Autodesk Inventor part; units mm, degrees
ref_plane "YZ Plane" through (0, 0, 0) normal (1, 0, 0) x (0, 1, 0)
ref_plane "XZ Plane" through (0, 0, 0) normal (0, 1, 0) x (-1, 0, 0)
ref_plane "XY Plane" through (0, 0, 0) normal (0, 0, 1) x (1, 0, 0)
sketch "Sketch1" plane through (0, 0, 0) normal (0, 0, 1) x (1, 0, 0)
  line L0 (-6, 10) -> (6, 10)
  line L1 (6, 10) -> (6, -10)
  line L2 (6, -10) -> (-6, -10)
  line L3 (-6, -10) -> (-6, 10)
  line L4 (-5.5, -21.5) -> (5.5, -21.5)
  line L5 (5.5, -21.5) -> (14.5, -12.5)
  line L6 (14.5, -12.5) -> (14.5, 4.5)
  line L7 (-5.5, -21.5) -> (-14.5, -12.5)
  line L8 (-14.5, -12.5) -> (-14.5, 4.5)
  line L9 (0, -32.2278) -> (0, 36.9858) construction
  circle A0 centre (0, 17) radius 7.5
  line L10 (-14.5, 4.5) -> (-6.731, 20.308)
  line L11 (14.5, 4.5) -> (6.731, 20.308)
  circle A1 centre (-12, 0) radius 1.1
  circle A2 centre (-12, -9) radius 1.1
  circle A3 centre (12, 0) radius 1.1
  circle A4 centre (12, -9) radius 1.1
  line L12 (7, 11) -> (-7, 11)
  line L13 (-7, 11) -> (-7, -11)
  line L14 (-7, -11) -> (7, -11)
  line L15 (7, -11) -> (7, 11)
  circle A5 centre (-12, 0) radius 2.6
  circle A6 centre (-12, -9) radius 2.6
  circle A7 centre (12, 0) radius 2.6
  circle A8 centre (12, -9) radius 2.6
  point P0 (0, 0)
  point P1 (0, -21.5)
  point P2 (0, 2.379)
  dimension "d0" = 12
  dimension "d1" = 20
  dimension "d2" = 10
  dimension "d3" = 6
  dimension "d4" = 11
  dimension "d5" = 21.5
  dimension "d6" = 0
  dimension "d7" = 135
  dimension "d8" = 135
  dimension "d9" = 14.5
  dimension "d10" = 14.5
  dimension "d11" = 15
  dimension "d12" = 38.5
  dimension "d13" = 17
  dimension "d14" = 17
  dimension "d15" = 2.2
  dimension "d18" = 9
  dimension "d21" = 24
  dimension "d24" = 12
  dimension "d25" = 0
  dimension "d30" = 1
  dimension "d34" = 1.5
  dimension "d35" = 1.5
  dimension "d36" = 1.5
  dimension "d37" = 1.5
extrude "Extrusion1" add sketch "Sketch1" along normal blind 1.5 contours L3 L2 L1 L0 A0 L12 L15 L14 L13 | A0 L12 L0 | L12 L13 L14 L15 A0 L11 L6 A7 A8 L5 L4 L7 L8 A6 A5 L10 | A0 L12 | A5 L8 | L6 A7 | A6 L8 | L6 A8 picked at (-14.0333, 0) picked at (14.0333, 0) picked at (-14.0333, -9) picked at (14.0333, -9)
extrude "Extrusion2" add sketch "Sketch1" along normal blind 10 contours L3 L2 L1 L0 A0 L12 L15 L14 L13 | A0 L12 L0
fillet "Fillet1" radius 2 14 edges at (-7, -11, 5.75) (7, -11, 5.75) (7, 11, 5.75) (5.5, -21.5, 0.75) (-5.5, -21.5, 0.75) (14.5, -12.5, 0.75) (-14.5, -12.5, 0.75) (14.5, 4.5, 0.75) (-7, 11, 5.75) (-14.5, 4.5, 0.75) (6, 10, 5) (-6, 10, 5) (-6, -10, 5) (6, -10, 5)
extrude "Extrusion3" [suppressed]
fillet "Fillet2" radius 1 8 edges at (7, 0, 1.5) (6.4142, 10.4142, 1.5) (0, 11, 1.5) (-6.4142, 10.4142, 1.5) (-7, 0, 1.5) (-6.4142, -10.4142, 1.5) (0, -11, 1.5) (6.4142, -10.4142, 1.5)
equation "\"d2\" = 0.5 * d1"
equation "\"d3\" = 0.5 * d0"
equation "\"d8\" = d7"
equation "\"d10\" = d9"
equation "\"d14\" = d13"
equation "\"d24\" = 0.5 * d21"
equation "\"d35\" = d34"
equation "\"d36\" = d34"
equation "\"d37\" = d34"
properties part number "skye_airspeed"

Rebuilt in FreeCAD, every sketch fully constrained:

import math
import FreeCAD as App
import Part
import Sketcher

V = App.Vector
Q = App.Units.Quantity


def edges_at(feature, points):
    """Names of the edges that pass closest to the given points."""
    edges = feature.Shape.Edges
    near = lambda p: min(range(len(edges)), key=lambda i: edges[i].distToShape(Part.Vertex(*p))[0])
    return sorted({f"Edge{near(p) + 1}" for p in points})

doc = App.newDocument("Part")
body = doc.addObject("PartDesign::Body", "Body")

sketch1 = doc.addObject("Sketcher::SketchObject", "Sketch")
body.addObject(sketch1)
sketch1.AttachmentSupport = (doc.XY_Plane, [""])
sketch1.MapMode = "FlatFace"
sketch1.addGeometry([
    Part.LineSegment(V(-14.5, 4.5, 0), V(-14.5, -12.5, 0)),
    Part.LineSegment(V(-14.5, -12.5, 0), V(-5.5, -21.5, 0)),
    Part.LineSegment(V(-5.5, -21.5, 0), V(5.5, -21.5, 0)),
    Part.LineSegment(V(5.5, -21.5, 0), V(14.5, -12.5, 0)),
    Part.LineSegment(V(14.5, -12.5, 0), V(14.5, 4.5, 0)),
    Part.LineSegment(V(14.5, 4.5, 0), V(6.731, 20.308, 0)),
    Part.ArcOfCircle(Part.Circle(V(0, 17, 0), V(0, 0, 1), 7.5), math.radians(26.172152), math.radians(153.827848)),
    Part.LineSegment(V(-6.731, 20.308, 0), V(-14.5, 4.5, 0)),
    Part.LineSegment(V(-6, -10, 0), V(-6, 10, 0)),
    Part.LineSegment(V(-6, 10, 0), V(6, 10, 0)),
    Part.LineSegment(V(6, 10, 0), V(6, -10, 0)),
    Part.LineSegment(V(6, -10, 0), V(-6, -10, 0)),
    Part.Circle(V(-12, 0, 0), V(0, 0, 1), 1.1),
    Part.Circle(V(12, 0, 0), V(0, 0, 1), 1.1),
    Part.Circle(V(12, -9, 0), V(0, 0, 1), 1.1),
    Part.Circle(V(-12, -9, 0), V(0, 0, 1), 1.1),
], False)
sketch1.addConstraint([
    Sketcher.Constraint("Coincident", 0, 2, 1, 1),
    Sketcher.Constraint("Coincident", 1, 2, 2, 1),
    Sketcher.Constraint("Coincident", 2, 2, 3, 1),
    Sketcher.Constraint("Coincident", 3, 2, 4, 1),
    Sketcher.Constraint("Coincident", 4, 2, 5, 1),
    Sketcher.Constraint("Tangent", 5, 2, 6, 1),
    Sketcher.Constraint("Tangent", 6, 2, 7, 1),
    Sketcher.Constraint("Coincident", 7, 2, 0, 1),
    Sketcher.Constraint("Coincident", 8, 2, 9, 1),
    Sketcher.Constraint("Coincident", 9, 2, 10, 1),
    Sketcher.Constraint("Coincident", 10, 2, 11, 1),
    Sketcher.Constraint("Coincident", 11, 2, 8, 1),
    Sketcher.Constraint("Vertical", 0),
    Sketcher.Constraint("Horizontal", 2),
    Sketcher.Constraint("Vertical", 4),
    Sketcher.Constraint("Vertical", 8),
    Sketcher.Constraint("Horizontal", 9),
    Sketcher.Constraint("Vertical", 10),
    Sketcher.Constraint("Horizontal", 11),
    Sketcher.Constraint("Equal", 12, 13),
    Sketcher.Constraint("Equal", 13, 14),
    Sketcher.Constraint("Equal", 14, 15),
    Sketcher.Constraint("Symmetric", 12, 3, 13, 3, -1, 1),
    Sketcher.Constraint("Symmetric", 8, 2, 10, 2, -1, 1),
    Sketcher.Constraint("Symmetric", 14, 3, 15, 3, -2),
    Sketcher.Constraint("Symmetric", 0, 2, 3, 2, -2),
    Sketcher.Constraint("Symmetric", 5, 2, 6, 2, -2),
    Sketcher.Constraint("PointOnObject", 12, 3, -1),
    Sketcher.Constraint("Perpendicular", 1, 3),
    Sketcher.Constraint("Vertical", 13, 3, 14, 3),
    Sketcher.Constraint("Equal", 1, 3),
    Sketcher.Constraint("Diameter", 12, Q("2.2 mm")),
    Sketcher.Constraint("Radius", 6, Q("7.5 mm")),
    Sketcher.Constraint("DistanceX", 2, 1, 2, 2, Q("11 mm")),
    Sketcher.Constraint("DistanceX", 9, 1, 9, 2, Q("12 mm")),
    Sketcher.Constraint("DistanceY", 0, 2, 0, 1, Q("17 mm")),
    Sketcher.Constraint("DistanceY", 8, 1, 8, 2, Q("20 mm")),
    Sketcher.Constraint("DistanceY", -1, 1, 6, 3, Q("17 mm")),
    Sketcher.Constraint("DistanceX", 12, 3, -1, 1, Q("12 mm")),
    Sketcher.Constraint("DistanceY", 14, 3, -1, 1, Q("9 mm")),
    Sketcher.Constraint("DistanceX", 0, 2, 1, 2, Q("9 mm")),
    Sketcher.Constraint("DistanceY", 1, 2, -1, 1, Q("21.5 mm")),
])
pad1 = doc.addObject("PartDesign::Pad", "Pad")
body.addObject(pad1)
pad1.Profile = sketch1
pad1.Length = 1.5

sketch2 = doc.addObject("Sketcher::SketchObject", "Sketch001")
body.addObject(sketch2)
sketch2.AttachmentSupport = (doc.XY_Plane, [""])
sketch2.MapMode = "FlatFace"
sketch2.addGeometry([
    Part.LineSegment(V(7, 11, 0), V(-7, 11, 0)),
    Part.LineSegment(V(-7, 11, 0), V(-7, -11, 0)),
    Part.LineSegment(V(-7, -11, 0), V(7, -11, 0)),
    Part.LineSegment(V(7, -11, 0), V(7, 11, 0)),
    Part.LineSegment(V(-6, -10, 0), V(-6, 10, 0)),
    Part.LineSegment(V(-6, 10, 0), V(6, 10, 0)),
    Part.LineSegment(V(6, 10, 0), V(6, -10, 0)),
    Part.LineSegment(V(6, -10, 0), V(-6, -10, 0)),
], False)
sketch2.addConstraint([
    Sketcher.Constraint("Coincident", 0, 2, 1, 1),
    Sketcher.Constraint("Coincident", 1, 2, 2, 1),
    Sketcher.Constraint("Coincident", 2, 2, 3, 1),
    Sketcher.Constraint("Coincident", 3, 2, 0, 1),
    Sketcher.Constraint("Coincident", 4, 2, 5, 1),
    Sketcher.Constraint("Coincident", 5, 2, 6, 1),
    Sketcher.Constraint("Coincident", 6, 2, 7, 1),
    Sketcher.Constraint("Coincident", 7, 2, 4, 1),
    Sketcher.Constraint("Horizontal", 0),
    Sketcher.Constraint("Vertical", 1),
    Sketcher.Constraint("Horizontal", 2),
    Sketcher.Constraint("Vertical", 3),
    Sketcher.Constraint("Vertical", 4),
    Sketcher.Constraint("Horizontal", 5),
    Sketcher.Constraint("Vertical", 6),
    Sketcher.Constraint("Horizontal", 7),
    Sketcher.Constraint("Symmetric", 0, 2, 2, 2, -1, 1),
    Sketcher.Constraint("Symmetric", 4, 2, 6, 2, -1, 1),
    Sketcher.Constraint("DistanceX", 5, 1, 5, 2, Q("12 mm")),
    Sketcher.Constraint("DistanceY", 4, 1, 4, 2, Q("20 mm")),
    Sketcher.Constraint("DistanceY", -1, 1, 0, 2, Q("11 mm")),
    Sketcher.Constraint("DistanceX", 0, 2, 4, 2, Q("1 mm")),
])
pad2 = doc.addObject("PartDesign::Pad", "Pad001")
body.addObject(pad2)
pad2.Profile = sketch2
pad2.Length = 10
doc.recompute()

fillet = doc.addObject("PartDesign::Fillet", "Fillet")
body.addObject(fillet)
fillet.Base = (pad2, edges_at(pad2, [
    (-7, -11, 5.75),
    (7, -11, 5.75),
    (7, 11, 5.75),
    (5.5, -21.5, 0.75),
    (-5.5, -21.5, 0.75),
    (14.5, -12.5, 0.75),
    (-14.5, -12.5, 0.75),
    (14.5, 4.5, 0.75),
    (-7, 11, 5.75),
    (-14.5, 4.5, 0.75),
    (6, 10, 5),
    (-6, 10, 5),
    (-6, -10, 5),
    (6, -10, 5),
]))
fillet.Radius = 2
doc.recompute()

fillet2 = doc.addObject("PartDesign::Fillet", "Fillet001")
body.addObject(fillet2)
fillet2.Base = (fillet, edges_at(fillet, [
    (7, 0, 1.5),
    (6.414, 10.414, 1.5),
    (0, 11, 1.5),
    (-6.414, 10.414, 1.5),
    (-7, 0, 1.5),
    (-6.414, -10.414, 1.5),
    (0, -11, 1.5),
    (6.414, -10.414, 1.5),
]))
fillet2.Radius = 1

doc.recompute()
